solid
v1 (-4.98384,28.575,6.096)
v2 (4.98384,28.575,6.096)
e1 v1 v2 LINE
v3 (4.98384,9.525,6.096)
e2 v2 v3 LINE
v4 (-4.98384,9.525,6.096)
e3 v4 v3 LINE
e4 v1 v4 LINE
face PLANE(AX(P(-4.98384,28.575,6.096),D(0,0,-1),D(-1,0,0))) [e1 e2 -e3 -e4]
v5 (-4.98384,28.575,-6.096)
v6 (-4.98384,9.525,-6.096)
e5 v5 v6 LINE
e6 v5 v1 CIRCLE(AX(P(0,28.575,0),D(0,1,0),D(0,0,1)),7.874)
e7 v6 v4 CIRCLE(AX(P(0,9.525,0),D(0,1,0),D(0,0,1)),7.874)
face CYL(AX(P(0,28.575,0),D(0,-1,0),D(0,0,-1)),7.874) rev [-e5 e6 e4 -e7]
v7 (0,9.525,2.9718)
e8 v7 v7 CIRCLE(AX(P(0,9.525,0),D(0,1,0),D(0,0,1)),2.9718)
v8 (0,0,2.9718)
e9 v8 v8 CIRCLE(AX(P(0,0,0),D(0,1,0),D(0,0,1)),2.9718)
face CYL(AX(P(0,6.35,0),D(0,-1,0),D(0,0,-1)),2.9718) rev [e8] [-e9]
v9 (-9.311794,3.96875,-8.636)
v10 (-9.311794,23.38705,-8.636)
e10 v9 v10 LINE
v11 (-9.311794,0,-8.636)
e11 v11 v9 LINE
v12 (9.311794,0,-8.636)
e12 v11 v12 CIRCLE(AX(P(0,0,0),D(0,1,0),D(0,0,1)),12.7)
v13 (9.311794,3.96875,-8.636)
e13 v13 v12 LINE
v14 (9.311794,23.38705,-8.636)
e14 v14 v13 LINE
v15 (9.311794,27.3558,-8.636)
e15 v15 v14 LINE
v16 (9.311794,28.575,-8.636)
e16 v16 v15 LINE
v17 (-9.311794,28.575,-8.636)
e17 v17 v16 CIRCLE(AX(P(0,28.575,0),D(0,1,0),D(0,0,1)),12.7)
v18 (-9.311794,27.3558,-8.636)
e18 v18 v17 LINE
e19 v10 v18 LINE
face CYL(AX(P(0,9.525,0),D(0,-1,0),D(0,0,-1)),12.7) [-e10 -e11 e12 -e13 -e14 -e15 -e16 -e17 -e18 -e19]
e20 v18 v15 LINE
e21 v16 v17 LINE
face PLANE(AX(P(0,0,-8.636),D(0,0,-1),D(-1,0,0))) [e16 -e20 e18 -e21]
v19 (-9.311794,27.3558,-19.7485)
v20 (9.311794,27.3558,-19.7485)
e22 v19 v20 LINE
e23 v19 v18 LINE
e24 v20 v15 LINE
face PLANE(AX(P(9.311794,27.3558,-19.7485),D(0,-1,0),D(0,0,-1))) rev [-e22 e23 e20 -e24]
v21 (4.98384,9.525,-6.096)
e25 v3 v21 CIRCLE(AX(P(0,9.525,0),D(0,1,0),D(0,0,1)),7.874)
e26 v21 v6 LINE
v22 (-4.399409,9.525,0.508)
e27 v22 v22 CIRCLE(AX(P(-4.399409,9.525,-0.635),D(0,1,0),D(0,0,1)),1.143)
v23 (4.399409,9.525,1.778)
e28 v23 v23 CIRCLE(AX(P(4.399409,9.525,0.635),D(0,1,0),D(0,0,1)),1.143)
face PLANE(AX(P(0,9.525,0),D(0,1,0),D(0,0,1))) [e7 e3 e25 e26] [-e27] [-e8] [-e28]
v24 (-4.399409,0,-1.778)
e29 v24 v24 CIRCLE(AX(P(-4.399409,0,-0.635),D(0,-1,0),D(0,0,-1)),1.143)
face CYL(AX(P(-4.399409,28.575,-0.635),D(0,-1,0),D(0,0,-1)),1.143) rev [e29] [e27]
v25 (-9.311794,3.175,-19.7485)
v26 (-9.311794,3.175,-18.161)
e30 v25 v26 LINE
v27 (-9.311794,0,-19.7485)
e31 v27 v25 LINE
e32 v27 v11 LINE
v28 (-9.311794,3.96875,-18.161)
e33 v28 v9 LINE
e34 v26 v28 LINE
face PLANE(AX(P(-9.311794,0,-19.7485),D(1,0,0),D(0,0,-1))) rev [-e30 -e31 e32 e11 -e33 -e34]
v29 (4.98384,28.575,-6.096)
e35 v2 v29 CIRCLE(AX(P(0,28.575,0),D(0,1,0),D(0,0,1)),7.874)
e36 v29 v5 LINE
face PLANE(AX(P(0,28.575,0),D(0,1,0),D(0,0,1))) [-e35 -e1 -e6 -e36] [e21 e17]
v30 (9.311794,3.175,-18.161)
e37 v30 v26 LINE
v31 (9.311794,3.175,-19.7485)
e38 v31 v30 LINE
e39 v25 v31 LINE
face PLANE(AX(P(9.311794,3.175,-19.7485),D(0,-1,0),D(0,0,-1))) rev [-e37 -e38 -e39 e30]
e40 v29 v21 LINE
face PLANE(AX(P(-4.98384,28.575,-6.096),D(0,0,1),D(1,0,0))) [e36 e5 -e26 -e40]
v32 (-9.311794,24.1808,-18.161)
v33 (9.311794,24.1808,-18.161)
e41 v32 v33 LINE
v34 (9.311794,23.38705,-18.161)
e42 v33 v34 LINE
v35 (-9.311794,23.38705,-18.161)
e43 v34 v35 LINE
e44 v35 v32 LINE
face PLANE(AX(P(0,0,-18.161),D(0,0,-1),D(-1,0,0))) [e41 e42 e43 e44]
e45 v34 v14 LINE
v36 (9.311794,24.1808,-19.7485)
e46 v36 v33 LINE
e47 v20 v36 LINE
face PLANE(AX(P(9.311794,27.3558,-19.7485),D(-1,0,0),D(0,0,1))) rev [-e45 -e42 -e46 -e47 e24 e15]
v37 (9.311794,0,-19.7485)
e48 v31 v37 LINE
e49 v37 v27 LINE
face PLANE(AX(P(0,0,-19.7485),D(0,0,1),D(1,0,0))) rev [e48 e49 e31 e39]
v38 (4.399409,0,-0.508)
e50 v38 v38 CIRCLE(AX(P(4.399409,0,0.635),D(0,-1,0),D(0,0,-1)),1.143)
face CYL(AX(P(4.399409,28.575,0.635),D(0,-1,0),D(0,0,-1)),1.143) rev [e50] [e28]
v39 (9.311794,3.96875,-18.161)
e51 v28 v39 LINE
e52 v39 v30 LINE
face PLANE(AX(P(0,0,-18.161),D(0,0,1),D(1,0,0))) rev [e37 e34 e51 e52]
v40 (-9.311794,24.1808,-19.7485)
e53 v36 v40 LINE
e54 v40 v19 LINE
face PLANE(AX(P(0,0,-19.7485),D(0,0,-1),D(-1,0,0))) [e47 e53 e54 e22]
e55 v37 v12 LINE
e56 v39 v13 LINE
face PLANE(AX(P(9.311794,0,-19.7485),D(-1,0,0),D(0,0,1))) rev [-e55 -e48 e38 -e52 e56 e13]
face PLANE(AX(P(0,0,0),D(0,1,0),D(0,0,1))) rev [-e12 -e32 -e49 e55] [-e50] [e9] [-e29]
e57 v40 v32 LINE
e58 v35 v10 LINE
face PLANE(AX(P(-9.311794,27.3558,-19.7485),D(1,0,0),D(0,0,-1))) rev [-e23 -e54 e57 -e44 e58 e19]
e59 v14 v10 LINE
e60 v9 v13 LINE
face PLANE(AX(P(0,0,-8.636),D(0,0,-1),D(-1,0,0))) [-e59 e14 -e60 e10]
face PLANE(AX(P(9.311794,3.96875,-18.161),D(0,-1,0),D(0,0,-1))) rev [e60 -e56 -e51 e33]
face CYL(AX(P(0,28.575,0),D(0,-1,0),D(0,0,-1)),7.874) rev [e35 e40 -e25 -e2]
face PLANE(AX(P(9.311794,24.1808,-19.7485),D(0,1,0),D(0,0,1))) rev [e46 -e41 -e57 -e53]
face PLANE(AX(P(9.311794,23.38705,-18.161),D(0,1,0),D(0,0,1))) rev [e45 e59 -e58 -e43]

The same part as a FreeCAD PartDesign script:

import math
import FreeCAD as App
import Part
import Sketcher

V = App.Vector
Q = App.Units.Quantity


def add_polygon(sketch, points):
    """Adds a closed chain of lines whose ends are joined by coincident constraints."""
    first, n = sketch.GeometryCount, len(points)
    for a, b in zip(points, points[1:] + points[:1]):
        sketch.addGeometry(Part.LineSegment(App.Vector(*a, 0), App.Vector(*b, 0)), False)
    for i in range(n):
        sketch.addConstraint(Sketcher.Constraint("Coincident", first + i, 2, first + (i + 1) % n, 1))

doc = App.newDocument("Part")
body = doc.addObject("PartDesign::Body", "Body")

sketch1 = body.newObject("Sketcher::SketchObject", "Sketch")
sketch1.AttachmentSupport = (doc.getObject("XZ_Plane"), [""])
sketch1.MapMode = "FlatFace"
sketch1.addGeometry([
    Part.Circle(V(0, 0, 0), V(0, 0, 1), 4.8),
    Part.Circle(V(0, 0, 0), V(0, 0, 1), 3),
], False)
sketch1.addConstraint([
    Sketcher.Constraint("Coincident", 0, 3, -1, 1),
    Sketcher.Constraint("Coincident", 1, 3, -1, 1),
    Sketcher.Constraint("Diameter", 0, Q("0.375 in")),
    Sketcher.Constraint("Diameter", 1, Q("0.234 in")),
])
pad1 = body.newObject("PartDesign::Pad", "Pad")
pad1.Profile = sketch1
pad1.Length = Q("0.25 in")
pad1.Reversed = True

sketch2 = body.newObject("Sketcher::SketchObject", "Sketch001")
sketch2.AttachmentSupport = (doc.getObject("XZ_Plane"), [""])
sketch2.MapMode = "FlatFace"
sketch2.AttachmentOffset = App.Placement(V(0, 0, -0.25 * 25.4), App.Rotation())
sketch2.addGeometry([
    Part.Circle(V(0, 0, 0), V(0, 0, 1), 12.7),
    Part.Circle(V(0, 0, 0), V(0, 0, 1), 3),
], False)
sketch2.addConstraint([
    Sketcher.Constraint("Coincident", 0, 3, -1, 1),
    Sketcher.Constraint("Coincident", 1, 3, -1, 1),
    Sketcher.Constraint("Diameter", 0, Q("1 in")),
    Sketcher.Constraint("Diameter", 1, Q("0.234 in")),
])
pad2 = body.newObject("PartDesign::Pad", "Pad001")
pad2.Profile = sketch2
pad2.Length = Q("0.125 in")
pad2.Reversed = True

sketch3 = body.newObject("Sketcher::SketchObject", "Sketch002")
sketch3.AttachmentSupport = (doc.getObject("XZ_Plane"), [""])
sketch3.MapMode = "FlatFace"
sketch3.AttachmentOffset = App.Placement(V(0, 0, -0.375 * 25.4), App.Rotation())
sketch3.addGeometry([
    Part.Circle(V(0, 0, 0), V(0, 0, 1), 13),
    Part.ArcOfCircle(Part.Circle(V(0, 0, 0), V(0, 0, 1), 8), math.radians(129), math.radians(231)),
    Part.LineSegment(V(-5, -6, 0), V(5, -6, 0)),
    Part.ArcOfCircle(Part.Circle(V(0, 0, 0), V(0, 0, 1), 8), math.radians(-51), math.radians(51)),
    Part.LineSegment(V(5, 6, 0), V(-5, 6, 0)),
], False)
sketch3.addConstraint([
    Sketcher.Constraint("Coincident", 1, 2, 2, 1),
    Sketcher.Constraint("Coincident", 2, 2, 3, 1),
    Sketcher.Constraint("Coincident", 3, 2, 4, 1),
    Sketcher.Constraint("Coincident", 4, 2, 1, 1),
    Sketcher.Constraint("Horizontal", 2),
    Sketcher.Constraint("Horizontal", 4),
    Sketcher.Constraint("Coincident", 0, 3, -1, 1),
    Sketcher.Constraint("Coincident", 1, 3, -1, 1),
    Sketcher.Constraint("Coincident", 3, 3, -1, 1),
    Sketcher.Constraint("Equal", 1, 3),
    Sketcher.Constraint("Vertical", 2, 2, 3, 2),
    Sketcher.Constraint("Diameter", 0, Q("1 in")),
    Sketcher.Constraint("Radius", 1, Q("0.31 in")),
    Sketcher.Constraint("DistanceY", 1, 2, -1, 1, Q("0.24 in")),
])
pad3 = body.newObject("PartDesign::Pad", "Pad002")
pad3.Profile = sketch3
pad3.Length = Q("0.75 in")
pad3.Reversed = True

sketch4 = body.newObject("Sketcher::SketchObject", "Sketch003")
sketch4.AttachmentSupport = (doc.getObject("XZ_Plane"), [""])
sketch4.MapMode = "FlatFace"
sketch4.AttachmentOffset = App.Placement(V(0, 0, -0.25 * 25.4), App.Rotation())
sketch4.addGeometry([
    Part.Circle(V(-4.4, -0.6, 0), V(0, 0, 1), 1.1),
    Part.Circle(V(4.4, 0.6, 0), V(0, 0, 1), 1.1),
], False)
sketch4.addConstraint([
    Sketcher.Constraint("Equal", 0, 1),
    Sketcher.Constraint("Symmetric", 0, 3, 1, 3, -1, 1),
    Sketcher.Constraint("Diameter", 0, Q("0.09 in")),
    Sketcher.Constraint("DistanceY", 0, 3, 1, 3, Q("0.05 in")),
    Sketcher.Constraint("DistanceX", 0, 3, -1, 1, 4.399409),
])
pocket1 = body.newObject("PartDesign::Pocket", "Pocket")
pocket1.Profile = sketch4
pocket1.Type = "ThroughAll"
pocket1.Midplane = True

sketch5 = body.newObject("Sketcher::SketchObject", "Sketch004")
sketch5.AttachmentSupport = (doc.getObject("XY_Plane"), [""])
sketch5.MapMode = "FlatFace"
sketch5.AttachmentOffset = App.Placement(V(0, 0, -0.34 * 25.4), App.Rotation())
add_polygon(sketch5, [(-13, 29), (-13, 0), (13, 0), (13, 29)])
sketch5.addConstraint([
    Sketcher.Constraint("Vertical", 0),
    Sketcher.Constraint("Horizontal", 1),
    Sketcher.Constraint("Vertical", 2),
    Sketcher.Constraint("Horizontal", 3),
    Sketcher.Constraint("Symmetric", 0, 2, 1, 2, -1, 1),
    Sketcher.Constraint("DistanceX", 1, 1, 1, 2, Q("1 in")),
    Sketcher.Constraint("DistanceY", 0, 2, 0, 1, Q("1.125 in")),
])
pocket2 = body.newObject("PartDesign::Pocket", "Pocket001")
pocket2.Profile = sketch5
pocket2.Type = "ThroughAll"

sketch6 = body.newObject("Sketcher::SketchObject", "Sketch005")
sketch6.AttachmentSupport = (doc.getObject("XZ_Plane"), [""])
sketch6.MapMode = "FlatFace"
sketch6.addGeometry([
    Part.LineSegment(V(-9.3, -8.6, 0), V(9.3, -8.6, 0)),
    Part.ArcOfCircle(Part.Circle(V(0, 0, 0), V(0, 0, 1), 12.7), math.radians(-43), math.radians(223)),
    Part.ArcOfCircle(Part.Circle(V(-4.4, -0.6, 0), V(0, 0, 1), 1.1), math.radians(107), math.radians(269)),
    Part.ArcOfCircle(Part.Circle(V(0, 0, 0), V(0, 0, 1), 4.8), math.radians(22), math.radians(175)),
    Part.ArcOfCircle(Part.Circle(V(4.4, 0.6, 0), V(0, 0, 1), 1.1), math.radians(-73), math.radians(89)),
    Part.ArcOfCircle(Part.Circle(V(0, 0, 0), V(0, 0, 1), 4.8), math.radians(-158), math.radians(-5)),
], False)
sketch6.addConstraint([
    Sketcher.Constraint("Coincident", 0, 1, 1, 2),
    Sketcher.Constraint("Coincident", 1, 1, 0, 2),
    Sketcher.Constraint("Coincident", 2, 1, 3, 2),
    Sketcher.Constraint("Coincident", 3, 1, 4, 2),
    Sketcher.Constraint("Coincident", 4, 1, 5, 2),
    Sketcher.Constraint("Coincident", 5, 1, 2, 2),
    Sketcher.Constraint("Horizontal", 0),
    Sketcher.Constraint("Coincident", 1, 3, -1, 1),
    Sketcher.Constraint("Coincident", 3, 3, -1, 1),
    Sketcher.Constraint("Coincident", 5, 3, -1, 1),
    Sketcher.Constraint("Equal", 2, 4),
    Sketcher.Constraint("Equal", 3, 5),
    Sketcher.Constraint("Symmetric", 2, 3, 4, 3, -1, 1),
    Sketcher.Constraint("Radius", 1, Q("0.5 in")),
    Sketcher.Constraint("Radius", 2, Q("0.045 in")),
    Sketcher.Constraint("Radius", 3, Q("0.1875 in")),
    Sketcher.Constraint("DistanceY", 0, 1, -1, 1, Q("0.34 in")),
    Sketcher.Constraint("DistanceY", 2, 3, 4, 3, Q("0.05 in")),
    Sketcher.Constraint("DistanceX", 2, 3, -1, 1, 4.399409),
])
pad4 = body.newObject("PartDesign::Pad", "Pad003")
pad4.Profile = sketch6
pad4.Length = Q("0.25 in")
pad4.Reversed = True

sketch7 = body.newObject("Sketcher::SketchObject", "Sketch006")
sketch7.AttachmentSupport = (doc.getObject("XY_Plane"), [""])
sketch7.MapMode = "FlatFace"
sketch7.AttachmentOffset = App.Placement(V(0, 0, -0.34 * 25.4), App.Rotation())
add_polygon(sketch7, [(9.3, 3.2), (9.3, 0), (-9.3, 0), (-9.3, 3.2)])
add_polygon(sketch7, [(9.3, 27.4), (9.3, 24.2), (-9.3, 24.2), (-9.3, 27.4)])
sketch7.addConstraint([
    Sketcher.Constraint("Vertical", 0),
    Sketcher.Constraint("Horizontal", 1),
    Sketcher.Constraint("Vertical", 2),
    Sketcher.Constraint("Horizontal", 3),
    Sketcher.Constraint("Vertical", 4),
    Sketcher.Constraint("Horizontal", 5),
    Sketcher.Constraint("Vertical", 6),
    Sketcher.Constraint("Horizontal", 7),
    Sketcher.Constraint("Symmetric", 0, 2, 1, 2, -1, 1),
    Sketcher.Constraint("Vertical", 3, 2, 4, 2),
    Sketcher.Constraint("Vertical", 2, 2, 5, 2),
    Sketcher.Constraint("Equal", 2, 4),
    Sketcher.Constraint("DistanceY", 0, 2, 0, 1, Q("0.125 in")),
    Sketcher.Constraint("DistanceY", -1, 1, 4, 2, Q("0.952 in")),
    Sketcher.Constraint("DistanceX", 1, 2, 1, 1, 18.623588),
])
pad5 = body.newObject("PartDesign::Pad", "Pad004")
pad5.Profile = sketch7
pad5.Length = Q("0.4375 in")
pad5.Reversed = True

sketch8 = body.newObject("Sketcher::SketchObject", "Sketch007")
sketch8.AttachmentSupport = (doc.getObject("XY_Plane"), [""])
sketch8.MapMode = "FlatFace"
sketch8.AttachmentOffset = App.Placement(V(0, 0, -0.34 * 25.4), App.Rotation())
add_polygon(sketch8, [(9.3, 4), (9.3, 3.2), (-9.3, 3.2), (-9.3, 4)])
add_polygon(sketch8, [(9.3, 24.2), (9.3, 23.4), (-9.3, 23.4), (-9.3, 24.2)])
sketch8.addConstraint([
    Sketcher.Constraint("Vertical", 0),
    Sketcher.Constraint("Horizontal", 1),
    Sketcher.Constraint("Vertical", 2),
    Sketcher.Constraint("Horizontal", 3),
    Sketcher.Constraint("Vertical", 4),
    Sketcher.Constraint("Horizontal", 5),
    Sketcher.Constraint("Vertical", 6),
    Sketcher.Constraint("Horizontal", 7),
    Sketcher.Constraint("Vertical", 3, 2, 4, 2),
    Sketcher.Constraint("Vertical", 2, 2, 5, 2),
    Sketcher.Constraint("Equal", 2, 4),
    Sketcher.Constraint("DistanceY", 0, 2, 0, 1, Q("0.03125 in")),
    Sketcher.Constraint("DistanceY", -1, 1, 0, 2, Q("0.125 in")),
    Sketcher.Constraint("DistanceY", -1, 1, 6, 2, Q("0.952 in")),
    Sketcher.Constraint("DistanceX", 1, 2, 1, 1, 18.623588),
    Sketcher.Constraint("DistanceX", -1, 1, 0, 2, 9.311794),
])
pad6 = body.newObject("PartDesign::Pad", "Pad005")
pad6.Profile = sketch8
pad6.Length = Q("0.375 in")
pad6.Reversed = True

doc.recompute()
